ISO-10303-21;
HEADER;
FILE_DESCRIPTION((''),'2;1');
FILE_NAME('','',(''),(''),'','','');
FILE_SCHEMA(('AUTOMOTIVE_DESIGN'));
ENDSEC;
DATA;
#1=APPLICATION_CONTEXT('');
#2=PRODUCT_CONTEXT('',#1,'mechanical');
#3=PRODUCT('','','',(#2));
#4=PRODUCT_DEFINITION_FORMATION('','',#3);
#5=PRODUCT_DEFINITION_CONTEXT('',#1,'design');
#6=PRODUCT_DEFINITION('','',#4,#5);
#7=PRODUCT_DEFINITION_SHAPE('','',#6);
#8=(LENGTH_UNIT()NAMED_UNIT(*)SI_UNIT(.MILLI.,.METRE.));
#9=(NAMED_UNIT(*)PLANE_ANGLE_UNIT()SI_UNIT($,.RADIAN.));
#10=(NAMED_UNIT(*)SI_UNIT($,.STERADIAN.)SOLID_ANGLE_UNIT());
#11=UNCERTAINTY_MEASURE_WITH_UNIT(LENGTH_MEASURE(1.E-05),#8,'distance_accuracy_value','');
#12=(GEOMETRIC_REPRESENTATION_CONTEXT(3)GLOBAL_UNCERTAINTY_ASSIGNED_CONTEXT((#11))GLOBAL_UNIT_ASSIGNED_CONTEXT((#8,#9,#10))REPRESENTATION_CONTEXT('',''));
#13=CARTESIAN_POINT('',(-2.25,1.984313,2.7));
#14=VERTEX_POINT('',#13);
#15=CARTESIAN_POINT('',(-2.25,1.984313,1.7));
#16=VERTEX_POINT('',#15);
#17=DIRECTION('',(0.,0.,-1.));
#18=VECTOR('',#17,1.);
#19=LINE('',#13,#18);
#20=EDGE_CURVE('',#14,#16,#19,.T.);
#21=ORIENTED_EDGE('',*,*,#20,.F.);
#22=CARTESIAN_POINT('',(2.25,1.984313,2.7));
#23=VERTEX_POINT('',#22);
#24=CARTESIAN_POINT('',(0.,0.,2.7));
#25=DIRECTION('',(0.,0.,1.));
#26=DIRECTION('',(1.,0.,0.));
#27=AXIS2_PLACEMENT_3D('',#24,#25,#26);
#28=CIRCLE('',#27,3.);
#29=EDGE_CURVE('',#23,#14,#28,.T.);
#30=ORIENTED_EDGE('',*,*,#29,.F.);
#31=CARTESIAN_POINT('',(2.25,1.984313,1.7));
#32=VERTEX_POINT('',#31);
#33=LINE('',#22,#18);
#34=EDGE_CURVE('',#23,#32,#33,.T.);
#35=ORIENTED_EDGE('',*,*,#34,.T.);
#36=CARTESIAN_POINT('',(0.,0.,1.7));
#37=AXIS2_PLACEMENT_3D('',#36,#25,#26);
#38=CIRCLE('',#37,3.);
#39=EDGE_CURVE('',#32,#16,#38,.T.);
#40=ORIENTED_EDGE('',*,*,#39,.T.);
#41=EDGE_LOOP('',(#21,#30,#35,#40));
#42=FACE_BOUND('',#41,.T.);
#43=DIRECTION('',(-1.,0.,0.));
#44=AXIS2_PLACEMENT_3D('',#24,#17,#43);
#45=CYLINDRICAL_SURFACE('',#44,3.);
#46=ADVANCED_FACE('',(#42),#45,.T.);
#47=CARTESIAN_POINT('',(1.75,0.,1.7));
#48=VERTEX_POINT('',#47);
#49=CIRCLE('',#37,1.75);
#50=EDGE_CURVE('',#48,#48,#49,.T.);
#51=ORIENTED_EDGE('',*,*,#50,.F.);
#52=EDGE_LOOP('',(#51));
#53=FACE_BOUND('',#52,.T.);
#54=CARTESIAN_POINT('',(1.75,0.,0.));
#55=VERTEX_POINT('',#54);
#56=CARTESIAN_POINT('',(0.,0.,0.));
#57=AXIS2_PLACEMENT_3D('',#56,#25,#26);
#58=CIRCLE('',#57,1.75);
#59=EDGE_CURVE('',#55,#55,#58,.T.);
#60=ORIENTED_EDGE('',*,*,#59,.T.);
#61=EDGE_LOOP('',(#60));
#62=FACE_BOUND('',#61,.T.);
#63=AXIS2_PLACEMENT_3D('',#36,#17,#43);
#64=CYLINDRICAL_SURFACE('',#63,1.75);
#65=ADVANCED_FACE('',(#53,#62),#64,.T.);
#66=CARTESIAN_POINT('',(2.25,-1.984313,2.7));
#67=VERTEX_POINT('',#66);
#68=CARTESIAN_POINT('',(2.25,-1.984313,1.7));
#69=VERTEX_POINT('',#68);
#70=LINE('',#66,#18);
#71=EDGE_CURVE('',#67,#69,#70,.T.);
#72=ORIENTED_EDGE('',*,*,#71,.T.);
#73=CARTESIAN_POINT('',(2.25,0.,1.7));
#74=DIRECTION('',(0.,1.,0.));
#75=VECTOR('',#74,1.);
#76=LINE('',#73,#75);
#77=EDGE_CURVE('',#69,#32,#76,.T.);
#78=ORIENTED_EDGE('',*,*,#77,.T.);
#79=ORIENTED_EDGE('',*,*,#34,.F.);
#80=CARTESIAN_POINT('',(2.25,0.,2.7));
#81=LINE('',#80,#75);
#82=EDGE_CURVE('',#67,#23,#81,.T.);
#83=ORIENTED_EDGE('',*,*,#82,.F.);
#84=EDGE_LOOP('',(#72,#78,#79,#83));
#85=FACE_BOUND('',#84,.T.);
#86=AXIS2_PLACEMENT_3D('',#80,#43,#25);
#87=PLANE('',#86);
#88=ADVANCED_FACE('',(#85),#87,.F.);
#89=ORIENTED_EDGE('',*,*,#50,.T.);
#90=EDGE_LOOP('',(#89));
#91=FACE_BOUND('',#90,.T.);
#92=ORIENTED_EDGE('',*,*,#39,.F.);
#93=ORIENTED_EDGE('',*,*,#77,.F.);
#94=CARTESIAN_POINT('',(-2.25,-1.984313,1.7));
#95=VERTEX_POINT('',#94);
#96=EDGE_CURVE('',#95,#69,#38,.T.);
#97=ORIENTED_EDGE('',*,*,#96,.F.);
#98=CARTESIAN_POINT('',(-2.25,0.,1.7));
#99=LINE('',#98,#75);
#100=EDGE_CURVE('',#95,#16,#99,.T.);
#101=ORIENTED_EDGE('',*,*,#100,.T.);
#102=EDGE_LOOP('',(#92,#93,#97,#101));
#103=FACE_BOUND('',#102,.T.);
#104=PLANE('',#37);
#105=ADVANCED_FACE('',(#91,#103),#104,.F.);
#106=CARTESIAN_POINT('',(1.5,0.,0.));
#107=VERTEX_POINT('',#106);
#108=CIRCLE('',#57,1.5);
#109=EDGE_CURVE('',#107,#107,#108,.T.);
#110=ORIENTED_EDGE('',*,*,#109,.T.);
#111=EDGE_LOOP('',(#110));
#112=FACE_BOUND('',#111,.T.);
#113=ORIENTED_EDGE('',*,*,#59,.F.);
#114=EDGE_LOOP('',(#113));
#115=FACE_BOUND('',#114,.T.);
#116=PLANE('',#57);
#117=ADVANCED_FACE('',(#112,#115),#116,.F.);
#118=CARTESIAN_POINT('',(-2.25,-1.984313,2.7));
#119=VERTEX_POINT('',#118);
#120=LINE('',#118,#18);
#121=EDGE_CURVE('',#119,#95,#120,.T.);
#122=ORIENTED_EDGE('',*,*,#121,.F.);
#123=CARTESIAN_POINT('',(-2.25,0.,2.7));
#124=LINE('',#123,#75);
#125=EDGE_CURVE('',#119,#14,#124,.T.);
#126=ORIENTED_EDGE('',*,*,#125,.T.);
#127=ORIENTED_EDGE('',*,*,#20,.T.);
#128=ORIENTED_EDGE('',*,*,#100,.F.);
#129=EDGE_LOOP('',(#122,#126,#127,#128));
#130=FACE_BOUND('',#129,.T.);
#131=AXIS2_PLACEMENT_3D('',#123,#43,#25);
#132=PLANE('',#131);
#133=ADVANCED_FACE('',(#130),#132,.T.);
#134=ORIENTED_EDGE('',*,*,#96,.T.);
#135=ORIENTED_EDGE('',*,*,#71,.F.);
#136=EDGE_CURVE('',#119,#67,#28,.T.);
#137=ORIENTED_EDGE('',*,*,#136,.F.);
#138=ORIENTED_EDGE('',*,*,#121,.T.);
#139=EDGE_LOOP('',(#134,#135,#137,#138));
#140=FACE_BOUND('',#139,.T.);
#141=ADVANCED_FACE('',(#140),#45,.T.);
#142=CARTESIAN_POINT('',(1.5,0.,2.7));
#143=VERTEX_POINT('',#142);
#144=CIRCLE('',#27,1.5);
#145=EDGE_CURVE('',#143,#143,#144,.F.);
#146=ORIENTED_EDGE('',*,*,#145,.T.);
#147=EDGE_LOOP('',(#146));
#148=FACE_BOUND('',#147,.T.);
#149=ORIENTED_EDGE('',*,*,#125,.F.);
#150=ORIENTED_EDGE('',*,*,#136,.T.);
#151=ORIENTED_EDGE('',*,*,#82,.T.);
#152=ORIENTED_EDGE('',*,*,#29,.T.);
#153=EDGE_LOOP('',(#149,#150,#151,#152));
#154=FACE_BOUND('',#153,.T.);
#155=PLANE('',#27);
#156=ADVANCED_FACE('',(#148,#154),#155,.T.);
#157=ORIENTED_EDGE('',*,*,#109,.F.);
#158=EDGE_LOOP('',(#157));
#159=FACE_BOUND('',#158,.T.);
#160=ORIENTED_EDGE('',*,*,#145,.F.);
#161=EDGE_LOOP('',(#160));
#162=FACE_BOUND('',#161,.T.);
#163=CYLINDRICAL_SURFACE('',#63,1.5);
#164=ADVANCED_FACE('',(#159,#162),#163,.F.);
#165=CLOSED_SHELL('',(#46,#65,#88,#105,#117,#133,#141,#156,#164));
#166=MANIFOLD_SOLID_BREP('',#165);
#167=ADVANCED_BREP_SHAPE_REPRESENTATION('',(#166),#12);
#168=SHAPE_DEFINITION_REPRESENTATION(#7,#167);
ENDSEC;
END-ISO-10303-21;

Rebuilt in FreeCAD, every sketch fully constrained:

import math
import FreeCAD as App
import Part
import Sketcher
from FreeCAD import Vector

doc = App.newDocument("Part")
body = doc.addObject("PartDesign::Body", "Body")

# Sketch on XY plane
sketch1 = body.newObject("Sketcher::SketchObject", "Sketch")
sketch1.AttachmentSupport = (doc.getObject("XY_Plane"), [""])
sketch1.MapMode = "FlatFace"
sketch1.addGeometry([
    Part.Circle(Vector(0, 0, 0), Vector(0, 0, 1), 1.8),
    Part.Circle(Vector(0, 0, 0), Vector(0, 0, 1), 1.5),
], False)
sketch1.addConstraint([
    Sketcher.Constraint("Coincident", 0, 3, -1, 1),
    Sketcher.Constraint("Coincident", 1, 3, -1, 1),
    Sketcher.Constraint("Diameter", 1, 3.0),
    Sketcher.Constraint("Diameter", 0, 3.5),
])
pad1 = body.newObject("PartDesign::Pad", "Pad")
pad1.Profile = sketch1
pad1.Length = 1.7

# Sketch on XY plane
sketch2 = body.newObject("Sketcher::SketchObject", "Sketch001")
sketch2.AttachmentSupport = (doc.getObject("XY_Plane"), [""])
sketch2.MapMode = "FlatFace"
sketch2.AttachmentOffset = App.Placement(Vector(0, 0, 1.7), App.Rotation())
sketch2.addGeometry([
    Part.ArcOfCircle(Part.Circle(Vector(0, 0, 0), Vector(0, 0, 1), 3), math.radians(-139), math.radians(-90)),  # 0
    Part.ArcOfCircle(Part.Circle(Vector(0, 0, 0), Vector(0, 0, 1), 3), math.radians(-90), math.radians(-41)),  # 1
    Part.LineSegment(Vector(2.2, -2, 0), Vector(2.2, 2, 0)),  # 2
    Part.ArcOfCircle(Part.Circle(Vector(0, 0, 0), Vector(0, 0, 1), 3), math.radians(41), math.radians(90)),  # 3
    Part.ArcOfCircle(Part.Circle(Vector(0, 0, 0), Vector(0, 0, 1), 3), math.radians(90), math.radians(139)),  # 4
    Part.LineSegment(Vector(-2.2, 2, 0), Vector(-2.2, -2, 0)),  # 5
    Part.Circle(Vector(0, 0, 0), Vector(0, 0, 1), 1.5),  # 6
], False)
sketch2.addConstraint([
    Sketcher.Constraint("Tangent", 0, 2, 1, 1),
    Sketcher.Constraint("Coincident", 1, 2, 2, 1),
    Sketcher.Constraint("Coincident", 2, 2, 3, 1),
    Sketcher.Constraint("Tangent", 3, 2, 4, 1),
    Sketcher.Constraint("Coincident", 4, 2, 5, 1),
    Sketcher.Constraint("Coincident", 5, 2, 0, 1),
    Sketcher.Constraint("Vertical", 2),
    Sketcher.Constraint("Vertical", 5),
    Sketcher.Constraint("Coincident", 0, 3, -1, 1),
    Sketcher.Constraint("Coincident", 3, 3, -1, 1),
    Sketcher.Constraint("Coincident", 6, 3, -1, 1),
    Sketcher.Constraint("Equal", 0, 1),
    Sketcher.Constraint("Equal", 1, 3),
    Sketcher.Constraint("Equal", 3, 4),
    Sketcher.Constraint("PointOnObject", 0, 2, -2),
    Sketcher.Constraint("PointOnObject", 3, 2, -2),
    Sketcher.Constraint("Horizontal", 2, 2, 4, 2),
    Sketcher.Constraint("Diameter", 6, 3.0),
    Sketcher.Constraint("Radius", 0, 3.0),
    Sketcher.Constraint("DistanceX", -1, 1, 1, 2, 2.25),
])
pad2 = body.newObject("PartDesign::Pad", "Pad001")
pad2.Profile = sketch2
pad2.Length = 1

doc.recompute()
